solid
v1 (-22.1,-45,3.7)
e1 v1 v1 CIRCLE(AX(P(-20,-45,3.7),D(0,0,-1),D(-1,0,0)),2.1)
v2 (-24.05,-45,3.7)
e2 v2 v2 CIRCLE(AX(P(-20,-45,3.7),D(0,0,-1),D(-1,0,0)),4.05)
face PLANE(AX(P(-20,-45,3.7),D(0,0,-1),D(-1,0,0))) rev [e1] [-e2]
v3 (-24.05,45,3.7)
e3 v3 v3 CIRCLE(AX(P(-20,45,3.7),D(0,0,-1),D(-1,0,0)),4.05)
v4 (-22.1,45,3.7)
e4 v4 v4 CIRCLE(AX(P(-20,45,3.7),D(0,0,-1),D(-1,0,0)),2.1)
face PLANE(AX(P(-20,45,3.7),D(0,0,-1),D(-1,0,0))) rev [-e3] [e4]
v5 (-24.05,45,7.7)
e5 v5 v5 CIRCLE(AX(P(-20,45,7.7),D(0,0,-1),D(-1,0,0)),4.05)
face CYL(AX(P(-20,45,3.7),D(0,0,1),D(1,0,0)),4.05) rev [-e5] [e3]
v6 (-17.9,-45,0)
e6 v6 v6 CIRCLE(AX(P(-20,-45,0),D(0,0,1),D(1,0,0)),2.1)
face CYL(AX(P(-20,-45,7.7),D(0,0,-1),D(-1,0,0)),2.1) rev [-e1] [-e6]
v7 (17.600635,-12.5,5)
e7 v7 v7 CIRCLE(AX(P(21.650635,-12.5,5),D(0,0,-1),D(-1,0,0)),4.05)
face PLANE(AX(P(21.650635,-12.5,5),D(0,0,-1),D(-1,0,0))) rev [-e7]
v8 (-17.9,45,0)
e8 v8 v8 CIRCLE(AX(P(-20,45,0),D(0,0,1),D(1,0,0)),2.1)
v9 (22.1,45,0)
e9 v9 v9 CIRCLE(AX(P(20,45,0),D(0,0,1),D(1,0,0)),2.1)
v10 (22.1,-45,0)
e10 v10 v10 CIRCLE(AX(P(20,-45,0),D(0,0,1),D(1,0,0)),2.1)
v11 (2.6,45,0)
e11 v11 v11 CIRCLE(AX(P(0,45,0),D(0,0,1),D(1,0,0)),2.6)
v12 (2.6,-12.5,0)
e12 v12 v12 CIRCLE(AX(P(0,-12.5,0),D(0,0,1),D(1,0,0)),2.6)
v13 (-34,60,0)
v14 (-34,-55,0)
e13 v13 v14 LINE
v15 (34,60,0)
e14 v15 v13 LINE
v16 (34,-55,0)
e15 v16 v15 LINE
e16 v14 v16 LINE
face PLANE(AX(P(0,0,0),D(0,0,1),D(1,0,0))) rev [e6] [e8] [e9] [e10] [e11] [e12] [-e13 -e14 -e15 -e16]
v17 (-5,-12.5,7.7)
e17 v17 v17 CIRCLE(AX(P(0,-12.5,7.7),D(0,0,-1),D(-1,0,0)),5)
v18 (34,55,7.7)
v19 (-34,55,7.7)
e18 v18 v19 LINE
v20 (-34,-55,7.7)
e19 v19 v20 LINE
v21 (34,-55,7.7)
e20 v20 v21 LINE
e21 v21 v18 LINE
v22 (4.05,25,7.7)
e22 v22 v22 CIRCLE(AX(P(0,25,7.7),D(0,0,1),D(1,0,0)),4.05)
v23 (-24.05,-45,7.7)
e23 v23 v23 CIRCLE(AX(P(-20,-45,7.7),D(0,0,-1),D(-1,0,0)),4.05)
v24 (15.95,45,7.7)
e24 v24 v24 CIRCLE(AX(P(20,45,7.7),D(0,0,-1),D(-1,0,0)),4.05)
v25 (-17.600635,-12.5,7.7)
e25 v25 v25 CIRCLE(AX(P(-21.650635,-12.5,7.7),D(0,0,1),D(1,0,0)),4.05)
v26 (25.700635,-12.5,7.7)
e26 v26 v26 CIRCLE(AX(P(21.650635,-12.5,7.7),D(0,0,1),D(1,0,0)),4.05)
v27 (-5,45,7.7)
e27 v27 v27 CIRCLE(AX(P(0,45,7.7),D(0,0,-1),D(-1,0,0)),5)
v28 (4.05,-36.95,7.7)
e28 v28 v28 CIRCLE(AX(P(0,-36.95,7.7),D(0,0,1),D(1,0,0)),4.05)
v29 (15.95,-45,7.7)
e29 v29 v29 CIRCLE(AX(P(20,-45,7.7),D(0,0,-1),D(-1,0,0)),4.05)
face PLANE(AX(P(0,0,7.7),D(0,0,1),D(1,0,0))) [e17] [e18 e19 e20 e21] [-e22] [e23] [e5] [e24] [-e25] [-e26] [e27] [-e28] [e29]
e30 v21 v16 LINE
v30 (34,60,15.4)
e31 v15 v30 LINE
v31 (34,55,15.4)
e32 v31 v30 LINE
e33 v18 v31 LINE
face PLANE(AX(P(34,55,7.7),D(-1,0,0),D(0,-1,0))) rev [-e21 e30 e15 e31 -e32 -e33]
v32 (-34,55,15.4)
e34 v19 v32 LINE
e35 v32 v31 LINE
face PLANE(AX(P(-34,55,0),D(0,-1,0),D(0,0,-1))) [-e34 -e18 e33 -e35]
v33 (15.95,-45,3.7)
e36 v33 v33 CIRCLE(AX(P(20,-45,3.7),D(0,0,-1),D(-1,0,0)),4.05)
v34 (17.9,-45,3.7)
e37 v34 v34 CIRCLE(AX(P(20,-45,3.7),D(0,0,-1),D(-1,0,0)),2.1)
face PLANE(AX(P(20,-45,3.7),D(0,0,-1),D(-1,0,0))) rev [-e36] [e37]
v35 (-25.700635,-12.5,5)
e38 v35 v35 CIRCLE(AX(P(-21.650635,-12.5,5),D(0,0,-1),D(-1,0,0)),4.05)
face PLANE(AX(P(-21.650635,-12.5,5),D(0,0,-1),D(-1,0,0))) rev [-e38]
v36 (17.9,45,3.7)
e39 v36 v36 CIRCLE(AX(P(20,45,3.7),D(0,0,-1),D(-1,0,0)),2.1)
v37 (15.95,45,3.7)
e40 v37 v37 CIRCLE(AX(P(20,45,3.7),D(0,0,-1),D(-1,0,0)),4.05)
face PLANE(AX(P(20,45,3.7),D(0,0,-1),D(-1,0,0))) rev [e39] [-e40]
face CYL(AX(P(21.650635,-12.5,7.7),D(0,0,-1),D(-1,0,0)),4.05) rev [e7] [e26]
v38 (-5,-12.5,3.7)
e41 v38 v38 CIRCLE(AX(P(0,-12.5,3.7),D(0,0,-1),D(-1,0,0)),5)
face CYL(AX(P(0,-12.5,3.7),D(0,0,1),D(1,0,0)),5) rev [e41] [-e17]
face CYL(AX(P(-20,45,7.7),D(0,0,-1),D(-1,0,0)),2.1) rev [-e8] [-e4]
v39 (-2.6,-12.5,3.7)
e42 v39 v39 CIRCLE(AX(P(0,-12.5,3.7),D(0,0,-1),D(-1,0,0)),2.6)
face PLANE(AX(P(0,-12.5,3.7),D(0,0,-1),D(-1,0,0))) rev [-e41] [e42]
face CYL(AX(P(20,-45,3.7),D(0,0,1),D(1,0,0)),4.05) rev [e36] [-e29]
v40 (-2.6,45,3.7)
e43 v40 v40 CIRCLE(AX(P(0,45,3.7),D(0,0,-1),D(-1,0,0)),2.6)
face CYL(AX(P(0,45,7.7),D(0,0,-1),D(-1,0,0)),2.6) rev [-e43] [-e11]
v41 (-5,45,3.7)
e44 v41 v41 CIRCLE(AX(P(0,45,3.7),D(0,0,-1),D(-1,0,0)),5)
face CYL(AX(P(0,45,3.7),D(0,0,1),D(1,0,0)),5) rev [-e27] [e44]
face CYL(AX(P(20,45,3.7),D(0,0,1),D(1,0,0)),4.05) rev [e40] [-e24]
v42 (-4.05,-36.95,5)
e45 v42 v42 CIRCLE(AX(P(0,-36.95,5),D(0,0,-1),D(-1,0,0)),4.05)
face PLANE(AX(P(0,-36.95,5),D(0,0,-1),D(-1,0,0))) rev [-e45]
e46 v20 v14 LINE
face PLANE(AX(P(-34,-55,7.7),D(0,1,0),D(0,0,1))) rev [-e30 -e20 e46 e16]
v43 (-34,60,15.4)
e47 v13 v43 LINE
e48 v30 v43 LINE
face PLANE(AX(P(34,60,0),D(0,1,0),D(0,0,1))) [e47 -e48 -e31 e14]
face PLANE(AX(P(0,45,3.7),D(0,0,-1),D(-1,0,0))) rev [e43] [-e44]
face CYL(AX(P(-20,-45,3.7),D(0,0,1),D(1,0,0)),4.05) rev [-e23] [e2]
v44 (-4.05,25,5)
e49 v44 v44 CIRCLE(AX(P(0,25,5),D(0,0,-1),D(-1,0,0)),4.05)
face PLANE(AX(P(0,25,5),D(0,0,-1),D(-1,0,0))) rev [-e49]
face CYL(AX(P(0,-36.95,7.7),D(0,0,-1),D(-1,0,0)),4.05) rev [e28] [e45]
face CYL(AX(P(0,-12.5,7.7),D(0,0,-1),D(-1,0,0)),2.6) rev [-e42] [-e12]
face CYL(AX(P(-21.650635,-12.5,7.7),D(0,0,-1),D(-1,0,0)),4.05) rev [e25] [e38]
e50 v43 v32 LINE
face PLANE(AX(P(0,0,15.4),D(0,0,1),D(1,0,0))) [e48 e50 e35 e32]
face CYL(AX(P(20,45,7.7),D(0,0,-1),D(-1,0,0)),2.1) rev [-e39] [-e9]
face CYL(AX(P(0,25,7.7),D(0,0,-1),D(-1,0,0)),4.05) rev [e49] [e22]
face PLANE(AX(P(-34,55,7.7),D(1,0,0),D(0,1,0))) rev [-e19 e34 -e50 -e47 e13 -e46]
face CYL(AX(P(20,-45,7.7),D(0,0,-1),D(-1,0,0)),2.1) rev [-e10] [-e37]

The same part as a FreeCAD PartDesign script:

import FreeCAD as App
import Part
import Sketcher

V = App.Vector


def add_polygon(sketch, points):
    """Adds a closed chain of lines whose ends are joined by coincident constraints."""
    first, n = sketch.GeometryCount, len(points)
    for a, b in zip(points, points[1:] + points[:1]):
        sketch.addGeometry(Part.LineSegment(App.Vector(*a, 0), App.Vector(*b, 0)), False)
    for i in range(n):
        sketch.addConstraint(Sketcher.Constraint("Coincident", first + i, 2, first + (i + 1) % n, 1))

doc = App.newDocument("Part")
body = doc.addObject("PartDesign::Body", "Body")

sketch1 = doc.addObject("Sketcher::SketchObject", "Sketch")
body.addObject(sketch1)
sketch1.AttachmentSupport = (doc.XY_Plane, [""])
sketch1.MapMode = "FlatFace"
add_polygon(sketch1, [(-34, 55), (-34, -55), (34, -55), (34, 55)])
sketch1.addGeometry(Part.Circle(V(-20, -45, 0), V(0, 0, 1), 2.1), False)
sketch1.addGeometry(Part.Circle(V(-21.7, -12.5, 0), V(0, 0, 1), 4), False)
sketch1.addGeometry(Part.Circle(V(0, -37, 0), V(0, 0, 1), 4), False)
sketch1.addGeometry(Part.Circle(V(20, -45, 0), V(0, 0, 1), 2.1), False)
sketch1.addGeometry(Part.Circle(V(0, -12.5, 0), V(0, 0, 1), 2.6), False)
sketch1.addGeometry(Part.Circle(V(21.7, -12.5, 0), V(0, 0, 1), 4), False)
sketch1.addGeometry(Part.Circle(V(-20, 45, 0), V(0, 0, 1), 2.1), False)
sketch1.addGeometry(Part.Circle(V(0, 25, 0), V(0, 0, 1), 4), False)
sketch1.addGeometry(Part.Circle(V(0, 45, 0), V(0, 0, 1), 2.6), False)
sketch1.addGeometry(Part.Circle(V(20, 45, 0), V(0, 0, 1), 2.1), False)
sketch1.addConstraint([
    Sketcher.Constraint("Vertical", 0),
    Sketcher.Constraint("Horizontal", 1),
    Sketcher.Constraint("Vertical", 2),
    Sketcher.Constraint("Horizontal", 3),
    Sketcher.Constraint("Equal", 5, 6),
    Sketcher.Constraint("Equal", 4, 7),
    Sketcher.Constraint("Equal", 6, 9),
    Sketcher.Constraint("Equal", 7, 10),
    Sketcher.Constraint("Equal", 9, 11),
    Sketcher.Constraint("Equal", 8, 12),
    Sketcher.Constraint("Equal", 10, 13),
    Sketcher.Constraint("Symmetric", 7, 3, 10, 3, -1, 1),
    Sketcher.Constraint("Symmetric", 4, 3, 13, 3, -1, 1),
    Sketcher.Constraint("Symmetric", 0, 2, 2, 2, -1, 1),
    Sketcher.Constraint("Symmetric", 4, 3, 7, 3, -2),
    Sketcher.Constraint("Symmetric", 5, 3, 9, 3, -2),
    Sketcher.Constraint("PointOnObject", 6, 3, -2),
    Sketcher.Constraint("PointOnObject", 8, 3, -2),
    Sketcher.Constraint("PointOnObject", 11, 3, -2),
    Sketcher.Constraint("PointOnObject", 12, 3, -2),
    Sketcher.Constraint("Horizontal", 5, 3, 8, 3),
    Sketcher.Constraint("Horizontal", 10, 3, 12, 3),
    Sketcher.Constraint("Diameter", 4, 4.2),
    Sketcher.Constraint("Diameter", 5, 8.1),
    Sketcher.Constraint("Diameter", 8, 5.2),
    Sketcher.Constraint("DistanceX", 1, 1, 1, 2, 68.0),
    Sketcher.Constraint("DistanceY", 0, 2, 0, 1, 110.0),
    Sketcher.Constraint("DistanceX", 4, 3, -1, 1, 20.0),
    Sketcher.Constraint("DistanceY", 4, 3, -1, 1, 45.0),
    Sketcher.Constraint("DistanceY", -1, 1, 11, 3, 25.0),
    Sketcher.Constraint("DistanceY", 5, 3, -1, 1, 12.5),
    Sketcher.Constraint("DistanceY", 6, 3, -1, 1, 36.95),
    Sketcher.Constraint("DistanceX", 5, 3, 9, 3, 43.30127),
])
pad1 = doc.addObject("PartDesign::Pad", "Pad")
body.addObject(pad1)
pad1.Profile = sketch1
pad1.Length = 7.7

sketch2 = doc.addObject("Sketcher::SketchObject", "Sketch001")
body.addObject(sketch2)
sketch2.AttachmentSupport = (doc.XY_Plane, [""])
sketch2.MapMode = "FlatFace"
sketch2.addGeometry([
    Part.Circle(V(22, -12, 0), V(0, 0, 1), 6),
    Part.Circle(V(0, 25, 0), V(0, 0, 1), 7),
    Part.Circle(V(-22, -12, 0), V(0, 0, 1), 8),
    Part.Circle(V(0, -37, 0), V(0, 0, 1), 11),
], False)
sketch2.addConstraint([
    Sketcher.Constraint("Symmetric", 0, 3, 2, 3, -2),
    Sketcher.Constraint("PointOnObject", 1, 3, -2),
    Sketcher.Constraint("PointOnObject", 3, 3, -2),
    Sketcher.Constraint("DistanceY", -1, 1, 1, 3, 25.0),
    Sketcher.Constraint("DistanceY", 0, 3, -1, 1, 12.5),
    Sketcher.Constraint("Diameter", 2, 16.228082),
    Sketcher.Constraint("DistanceY", 3, 3, -1, 1, 36.95),
    Sketcher.Constraint("Diameter", 0, 12.609266),
    Sketcher.Constraint("Diameter", 1, 14.668667),
    Sketcher.Constraint("Diameter", 3, 22.147313),
    Sketcher.Constraint("DistanceX", 2, 3, 0, 3, 43.30127),
])
pad2 = doc.addObject("PartDesign::Pad", "Pad001")
body.addObject(pad2)
pad2.Profile = sketch2
pad2.Length = 5

sketch3 = doc.addObject("Sketcher::SketchObject", "Sketch002")
body.addObject(sketch3)
sketch3.AttachmentSupport = (doc.XY_Plane, [""])
sketch3.MapMode = "FlatFace"
sketch3.AttachmentOffset = App.Placement(V(0, 0, 7.7), App.Rotation())
sketch3.addGeometry([
    Part.Circle(V(20, 45, 0), V(0, 0, 1), 4),
    Part.Circle(V(-20, 45, 0), V(0, 0, 1), 4),
    Part.Circle(V(20, -45, 0), V(0, 0, 1), 4),
    Part.Circle(V(-20, -45, 0), V(0, 0, 1), 4),
    Part.Circle(V(0, 45, 0), V(0, 0, 1), 5),
    Part.Circle(V(0, -12.5, 0), V(0, 0, 1), 5),
], False)
sketch3.addConstraint([
    Sketcher.Constraint("Equal", 0, 1),
    Sketcher.Constraint("Equal", 1, 2),
    Sketcher.Constraint("Equal", 2, 3),
    Sketcher.Constraint("Equal", 4, 5),
    Sketcher.Constraint("Symmetric", 1, 3, 2, 3, -1, 1),
    Sketcher.Constraint("Symmetric", 0, 3, 3, 3, -1, 1),
    Sketcher.Constraint("Symmetric", 0, 3, 1, 3, -2),
    Sketcher.Constraint("PointOnObject", 4, 3, -2),
    Sketcher.Constraint("PointOnObject", 5, 3, -2),
    Sketcher.Constraint("Horizontal", 1, 3, 4, 3),
    Sketcher.Constraint("Diameter", 4, 10.0),
    Sketcher.Constraint("Diameter", 0, 8.1),
    Sketcher.Constraint("DistanceX", -1, 1, 0, 3, 20.0),
    Sketcher.Constraint("DistanceY", -1, 1, 0, 3, 45.0),
    Sketcher.Constraint("DistanceY", 5, 3, -1, 1, 12.5),
])
pocket1 = doc.addObject("PartDesign::Pocket", "Pocket")
body.addObject(pocket1)
pocket1.Profile = sketch3
pocket1.Length = 4

sketch4 = doc.addObject("Sketcher::SketchObject", "Sketch003")
body.addObject(sketch4)
sketch4.AttachmentSupport = (doc.XY_Plane, [""])
sketch4.MapMode = "FlatFace"
sketch4.AttachmentOffset = App.Placement(V(0, 0, 7.7), App.Rotation())
add_polygon(sketch4, [(-34, 60), (-34, 55), (34, 55), (34, 60)])
sketch4.addConstraint([
    Sketcher.Constraint("Vertical", 0),
    Sketcher.Constraint("Horizontal", 1),
    Sketcher.Constraint("Vertical", 2),
    Sketcher.Constraint("Horizontal", 3),
    Sketcher.Constraint("DistanceX", 1, 1, 1, 2, 68.0),
    Sketcher.Constraint("DistanceY", 0, 2, 0, 1, 5.0),
    Sketcher.Constraint("DistanceX", 0, 2, -1, 1, 34.0),
    Sketcher.Constraint("DistanceY", -1, 1, 0, 2, 55.0),
])
pad3 = doc.addObject("PartDesign::Pad", "Pad002")
body.addObject(pad3)
pad3.Profile = sketch4
pad3.Type = "TwoLengths"
pad3.Length = 7.7
pad3.Length2 = 7.7

doc.recompute()
